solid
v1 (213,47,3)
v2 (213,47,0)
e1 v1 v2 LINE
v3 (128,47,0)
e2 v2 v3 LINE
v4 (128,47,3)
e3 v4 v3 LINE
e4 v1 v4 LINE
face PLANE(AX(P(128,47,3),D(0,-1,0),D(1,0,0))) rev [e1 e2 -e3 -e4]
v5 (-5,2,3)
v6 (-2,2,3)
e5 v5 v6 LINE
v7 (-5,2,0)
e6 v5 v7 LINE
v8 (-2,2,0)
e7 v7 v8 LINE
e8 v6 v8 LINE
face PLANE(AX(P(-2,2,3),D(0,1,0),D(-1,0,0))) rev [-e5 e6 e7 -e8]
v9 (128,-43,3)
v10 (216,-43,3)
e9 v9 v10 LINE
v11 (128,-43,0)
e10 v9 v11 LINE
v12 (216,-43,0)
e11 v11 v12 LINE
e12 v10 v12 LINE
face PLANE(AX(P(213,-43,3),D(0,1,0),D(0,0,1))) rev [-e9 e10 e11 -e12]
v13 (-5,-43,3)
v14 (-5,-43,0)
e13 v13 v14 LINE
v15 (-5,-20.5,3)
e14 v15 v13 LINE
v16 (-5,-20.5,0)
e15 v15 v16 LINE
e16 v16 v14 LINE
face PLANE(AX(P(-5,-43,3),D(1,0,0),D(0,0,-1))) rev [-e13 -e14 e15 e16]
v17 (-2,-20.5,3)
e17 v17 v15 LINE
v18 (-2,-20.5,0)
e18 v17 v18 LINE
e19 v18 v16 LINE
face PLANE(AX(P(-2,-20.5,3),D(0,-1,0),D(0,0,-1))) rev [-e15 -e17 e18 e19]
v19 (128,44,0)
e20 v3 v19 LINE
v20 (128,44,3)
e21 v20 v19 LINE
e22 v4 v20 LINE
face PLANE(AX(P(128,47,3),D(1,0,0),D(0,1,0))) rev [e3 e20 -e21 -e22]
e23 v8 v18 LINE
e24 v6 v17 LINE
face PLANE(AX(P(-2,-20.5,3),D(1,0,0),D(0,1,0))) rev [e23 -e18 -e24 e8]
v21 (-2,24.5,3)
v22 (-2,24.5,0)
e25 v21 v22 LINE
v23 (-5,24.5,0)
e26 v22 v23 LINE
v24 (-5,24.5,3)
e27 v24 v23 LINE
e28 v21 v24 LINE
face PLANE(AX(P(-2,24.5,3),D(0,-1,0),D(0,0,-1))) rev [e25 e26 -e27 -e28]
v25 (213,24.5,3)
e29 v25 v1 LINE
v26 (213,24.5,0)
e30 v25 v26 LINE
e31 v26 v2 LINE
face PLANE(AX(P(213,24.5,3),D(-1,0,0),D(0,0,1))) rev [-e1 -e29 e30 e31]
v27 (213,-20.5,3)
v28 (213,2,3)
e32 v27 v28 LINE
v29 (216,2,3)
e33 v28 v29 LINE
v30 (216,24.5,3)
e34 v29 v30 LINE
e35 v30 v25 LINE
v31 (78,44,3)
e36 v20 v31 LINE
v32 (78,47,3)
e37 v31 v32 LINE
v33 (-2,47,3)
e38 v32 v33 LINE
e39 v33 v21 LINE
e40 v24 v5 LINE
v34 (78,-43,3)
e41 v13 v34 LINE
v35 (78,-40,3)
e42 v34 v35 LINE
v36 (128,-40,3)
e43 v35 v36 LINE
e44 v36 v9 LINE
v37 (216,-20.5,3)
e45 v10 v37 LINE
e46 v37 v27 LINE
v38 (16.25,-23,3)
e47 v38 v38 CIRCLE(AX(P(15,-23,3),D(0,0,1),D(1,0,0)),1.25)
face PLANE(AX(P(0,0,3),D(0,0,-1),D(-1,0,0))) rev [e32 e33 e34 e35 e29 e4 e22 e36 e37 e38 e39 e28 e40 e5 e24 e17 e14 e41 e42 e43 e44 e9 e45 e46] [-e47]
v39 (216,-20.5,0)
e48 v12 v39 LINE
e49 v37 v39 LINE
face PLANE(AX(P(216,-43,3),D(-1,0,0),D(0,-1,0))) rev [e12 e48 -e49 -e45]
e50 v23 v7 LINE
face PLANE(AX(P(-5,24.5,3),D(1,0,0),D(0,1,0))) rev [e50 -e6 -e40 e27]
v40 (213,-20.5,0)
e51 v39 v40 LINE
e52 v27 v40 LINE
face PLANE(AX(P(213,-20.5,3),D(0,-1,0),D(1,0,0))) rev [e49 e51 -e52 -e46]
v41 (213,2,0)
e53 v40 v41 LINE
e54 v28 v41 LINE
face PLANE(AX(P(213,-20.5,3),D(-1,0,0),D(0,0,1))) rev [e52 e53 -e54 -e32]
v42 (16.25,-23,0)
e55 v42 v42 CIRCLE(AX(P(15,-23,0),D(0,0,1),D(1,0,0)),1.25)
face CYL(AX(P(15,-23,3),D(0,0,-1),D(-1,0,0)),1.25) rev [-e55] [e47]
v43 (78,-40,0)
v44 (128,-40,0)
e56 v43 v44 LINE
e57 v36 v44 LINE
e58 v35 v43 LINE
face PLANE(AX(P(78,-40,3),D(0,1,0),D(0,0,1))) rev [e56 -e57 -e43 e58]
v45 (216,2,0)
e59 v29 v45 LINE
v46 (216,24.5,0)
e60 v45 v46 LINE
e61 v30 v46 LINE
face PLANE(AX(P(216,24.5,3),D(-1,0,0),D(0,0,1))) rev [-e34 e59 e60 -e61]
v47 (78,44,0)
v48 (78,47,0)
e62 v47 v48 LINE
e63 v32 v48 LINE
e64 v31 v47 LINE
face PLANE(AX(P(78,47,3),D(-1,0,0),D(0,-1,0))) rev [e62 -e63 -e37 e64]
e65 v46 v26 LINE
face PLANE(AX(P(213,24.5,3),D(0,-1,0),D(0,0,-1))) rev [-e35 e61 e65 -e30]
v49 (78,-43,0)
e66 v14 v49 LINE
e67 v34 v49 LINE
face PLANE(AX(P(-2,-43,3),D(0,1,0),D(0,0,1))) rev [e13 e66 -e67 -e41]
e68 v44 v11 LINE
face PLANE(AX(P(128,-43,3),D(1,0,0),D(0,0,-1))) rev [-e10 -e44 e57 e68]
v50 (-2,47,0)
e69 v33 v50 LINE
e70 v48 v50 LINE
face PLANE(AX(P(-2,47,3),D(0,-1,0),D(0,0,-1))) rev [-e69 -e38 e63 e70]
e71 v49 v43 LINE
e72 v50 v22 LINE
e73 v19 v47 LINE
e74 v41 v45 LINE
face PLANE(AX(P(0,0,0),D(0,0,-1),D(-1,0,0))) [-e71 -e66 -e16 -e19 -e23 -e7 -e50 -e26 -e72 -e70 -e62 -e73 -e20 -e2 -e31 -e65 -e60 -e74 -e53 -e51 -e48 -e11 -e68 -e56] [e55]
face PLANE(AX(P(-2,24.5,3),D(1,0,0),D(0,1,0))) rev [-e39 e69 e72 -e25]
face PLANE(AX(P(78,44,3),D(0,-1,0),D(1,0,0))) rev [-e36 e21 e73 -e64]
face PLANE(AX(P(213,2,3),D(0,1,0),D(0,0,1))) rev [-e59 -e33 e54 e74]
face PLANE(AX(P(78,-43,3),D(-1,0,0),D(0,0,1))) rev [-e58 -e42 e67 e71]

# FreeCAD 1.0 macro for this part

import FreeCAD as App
import Part
import Sketcher
from FreeCAD import Vector

doc = App.newDocument("Part")
body = doc.addObject("PartDesign::Body", "Body")

# Sketch on XY plane
sketch1 = doc.addObject("Sketcher::SketchObject", "Sketch")
body.addObject(sketch1)
sketch1.AttachmentSupport = (doc.XY_Plane, [""])
sketch1.MapMode = "FlatFace"
sketch1.addGeometry(Part.LineSegment(Vector(78, 47, 0), Vector(-2, 47, 0)), False)
sketch1.addGeometry(Part.LineSegment(Vector(-2, 47, 0), Vector(-2, 24.5, 0)), False)
sketch1.addGeometry(Part.LineSegment(Vector(-2, 24.5, 0), Vector(-5, 24.5, 0)), False)
sketch1.addGeometry(Part.LineSegment(Vector(-5, 24.5, 0), Vector(-5, 2, 0)), False)
sketch1.addGeometry(Part.LineSegment(Vector(-5, 2, 0), Vector(-2, 2, 0)), False)
sketch1.addGeometry(Part.LineSegment(Vector(-2, 2, 0), Vector(-2, -20.5, 0)), False)
sketch1.addGeometry(Part.LineSegment(Vector(-2, -20.5, 0), Vector(-5, -20.5, 0)), False)
sketch1.addGeometry(Part.LineSegment(Vector(-5, -20.5, 0), Vector(-5, -43, 0)), False)
sketch1.addGeometry(Part.LineSegment(Vector(-5, -43, 0), Vector(78, -43, 0)), False)
sketch1.addGeometry(Part.LineSegment(Vector(78, -43, 0), Vector(78, -40, 0)), False)
sketch1.addGeometry(Part.LineSegment(Vector(78, -40, 0), Vector(128, -40, 0)), False)
sketch1.addGeometry(Part.LineSegment(Vector(128, -40, 0), Vector(128, -43, 0)), False)
sketch1.addGeometry(Part.LineSegment(Vector(128, -43, 0), Vector(216, -43, 0)), False)
sketch1.addGeometry(Part.LineSegment(Vector(216, -43, 0), Vector(216, -20.5, 0)), False)
sketch1.addGeometry(Part.LineSegment(Vector(216, -20.5, 0), Vector(213, -20.5, 0)), False)
sketch1.addGeometry(Part.LineSegment(Vector(213, -20.5, 0), Vector(213, 2, 0)), False)
sketch1.addGeometry(Part.LineSegment(Vector(213, 2, 0), Vector(216, 2, 0)), False)
sketch1.addGeometry(Part.LineSegment(Vector(216, 2, 0), Vector(216, 24.5, 0)), False)
sketch1.addGeometry(Part.LineSegment(Vector(216, 24.5, 0), Vector(213, 24.5, 0)), False)
sketch1.addGeometry(Part.LineSegment(Vector(213, 24.5, 0), Vector(213, 47, 0)), False)
sketch1.addGeometry(Part.LineSegment(Vector(213, 47, 0), Vector(128, 47, 0)), False)
sketch1.addGeometry(Part.LineSegment(Vector(128, 47, 0), Vector(128, 44, 0)), False)
sketch1.addGeometry(Part.LineSegment(Vector(128, 44, 0), Vector(78, 44, 0)), False)
sketch1.addGeometry(Part.LineSegment(Vector(78, 44, 0), Vector(78, 47, 0)), False)
sketch1.addGeometry(Part.Circle(Vector(15, -23, 0), Vector(0, 0, 1), 1.2), False)
sketch1.addConstraint(Sketcher.Constraint("Coincident", 0, 2, 1, 1))
sketch1.addConstraint(Sketcher.Constraint("Coincident", 1, 2, 2, 1))
sketch1.addConstraint(Sketcher.Constraint("Coincident", 2, 2, 3, 1))
sketch1.addConstraint(Sketcher.Constraint("Coincident", 3, 2, 4, 1))
sketch1.addConstraint(Sketcher.Constraint("Coincident", 4, 2, 5, 1))
sketch1.addConstraint(Sketcher.Constraint("Coincident", 5, 2, 6, 1))
sketch1.addConstraint(Sketcher.Constraint("Coincident", 6, 2, 7, 1))
sketch1.addConstraint(Sketcher.Constraint("Coincident", 7, 2, 8, 1))
sketch1.addConstraint(Sketcher.Constraint("Coincident", 8, 2, 9, 1))
sketch1.addConstraint(Sketcher.Constraint("Coincident", 9, 2, 10, 1))
sketch1.addConstraint(Sketcher.Constraint("Coincident", 10, 2, 11, 1))
sketch1.addConstraint(Sketcher.Constraint("Coincident", 11, 2, 12, 1))
sketch1.addConstraint(Sketcher.Constraint("Coincident", 12, 2, 13, 1))
sketch1.addConstraint(Sketcher.Constraint("Coincident", 13, 2, 14, 1))
sketch1.addConstraint(Sketcher.Constraint("Coincident", 14, 2, 15, 1))
sketch1.addConstraint(Sketcher.Constraint("Coincident", 15, 2, 16, 1))
sketch1.addConstraint(Sketcher.Constraint("Coincident", 16, 2, 17, 1))
sketch1.addConstraint(Sketcher.Constraint("Coincident", 17, 2, 18, 1))
sketch1.addConstraint(Sketcher.Constraint("Coincident", 18, 2, 19, 1))
sketch1.addConstraint(Sketcher.Constraint("Coincident", 19, 2, 20, 1))
sketch1.addConstraint(Sketcher.Constraint("Coincident", 20, 2, 21, 1))
sketch1.addConstraint(Sketcher.Constraint("Coincident", 21, 2, 22, 1))
sketch1.addConstraint(Sketcher.Constraint("Coincident", 22, 2, 23, 1))
sketch1.addConstraint(Sketcher.Constraint("Coincident", 23, 2, 0, 1))
sketch1.addConstraint(Sketcher.Constraint("Horizontal", 0))
sketch1.addConstraint(Sketcher.Constraint("Vertical", 1))
sketch1.addConstraint(Sketcher.Constraint("Horizontal", 2))
sketch1.addConstraint(Sketcher.Constraint("Vertical", 3))
sketch1.addConstraint(Sketcher.Constraint("Horizontal", 4))
sketch1.addConstraint(Sketcher.Constraint("Vertical", 5))
sketch1.addConstraint(Sketcher.Constraint("Horizontal", 6))
sketch1.addConstraint(Sketcher.Constraint("Vertical", 7))
sketch1.addConstraint(Sketcher.Constraint("Horizontal", 8))
sketch1.addConstraint(Sketcher.Constraint("Vertical", 9))
sketch1.addConstraint(Sketcher.Constraint("Horizontal", 10))
sketch1.addConstraint(Sketcher.Constraint("Vertical", 11))
sketch1.addConstraint(Sketcher.Constraint("Horizontal", 12))
sketch1.addConstraint(Sketcher.Constraint("Vertical", 13))
sketch1.addConstraint(Sketcher.Constraint("Horizontal", 14))
sketch1.addConstraint(Sketcher.Constraint("Vertical", 15))
sketch1.addConstraint(Sketcher.Constraint("Horizontal", 16))
sketch1.addConstraint(Sketcher.Constraint("Vertical", 17))
sketch1.addConstraint(Sketcher.Constraint("Horizontal", 18))
sketch1.addConstraint(Sketcher.Constraint("Vertical", 19))
sketch1.addConstraint(Sketcher.Constraint("Horizontal", 20))
sketch1.addConstraint(Sketcher.Constraint("Vertical", 21))
sketch1.addConstraint(Sketcher.Constraint("Horizontal", 22))
sketch1.addConstraint(Sketcher.Constraint("Vertical", 23))
sketch1.addConstraint(Sketcher.Constraint("Horizontal", 8, 2, 11, 2))
sketch1.addConstraint(Sketcher.Constraint("Horizontal", 6, 2, 13, 2))
sketch1.addConstraint(Sketcher.Constraint("Horizontal", 4, 2, 15, 2))
sketch1.addConstraint(Sketcher.Constraint("Horizontal", 2, 2, 17, 2))
sketch1.addConstraint(Sketcher.Constraint("Horizontal", 0, 2, 19, 2))
sketch1.addConstraint(Sketcher.Constraint("Vertical", 1, 2, 4, 2))
sketch1.addConstraint(Sketcher.Constraint("Vertical", 3, 2, 6, 2))
sketch1.addConstraint(Sketcher.Constraint("Vertical", 13, 2, 16, 2))
sketch1.addConstraint(Sketcher.Constraint("Vertical", 15, 2, 18, 2))
sketch1.addConstraint(Sketcher.Constraint("Vertical", 11, 2, 20, 2))
sketch1.addConstraint(Sketcher.Constraint("Vertical", 9, 2, 22, 2))
sketch1.addConstraint(Sketcher.Constraint("Equal", 6, 14))
sketch1.addConstraint(Sketcher.Constraint("Equal", 1, 3))
sketch1.addConstraint(Sketcher.Constraint("Equal", 3, 5))
sketch1.addConstraint(Sketcher.Constraint("Equal", 5, 7))
sketch1.addConstraint(Sketcher.Constraint("Equal", 18, 9))
sketch1.addConstraint(Sketcher.Constraint("Equal", 11, 21))
sketch1.addConstraint(Sketcher.Constraint("Diameter", 24, 2.5))
sketch1.addConstraint(Sketcher.Constraint("DistanceX", 0, 2, 0, 1, 80.0))
sketch1.addConstraint(Sketcher.Constraint("DistanceX", 2, 2, 2, 1, 3.0))
sketch1.addConstraint(Sketcher.Constraint("DistanceX", 10, 1, 10, 2, 50.0))
sketch1.addConstraint(Sketcher.Constraint("DistanceX", 12, 1, 12, 2, 88.0))
sketch1.addConstraint(Sketcher.Constraint("DistanceY", 1, 2, 1, 1, 22.5))
sketch1.addConstraint(Sketcher.Constraint("DistanceX", -1, 1, 24, 3, 15.0))
sketch1.addConstraint(Sketcher.Constraint("DistanceY", 24, 3, -1, 1, 23.0))
sketch1.addConstraint(Sketcher.Constraint("DistanceX", 0, 2, -1, 1, 2.0))
sketch1.addConstraint(Sketcher.Constraint("DistanceY", -1, 1, 0, 2, 47.0))
pad1 = doc.addObject("PartDesign::Pad", "Pad")
body.addObject(pad1)
pad1.Profile = sketch1
pad1.Length = 3

doc.recompute()
